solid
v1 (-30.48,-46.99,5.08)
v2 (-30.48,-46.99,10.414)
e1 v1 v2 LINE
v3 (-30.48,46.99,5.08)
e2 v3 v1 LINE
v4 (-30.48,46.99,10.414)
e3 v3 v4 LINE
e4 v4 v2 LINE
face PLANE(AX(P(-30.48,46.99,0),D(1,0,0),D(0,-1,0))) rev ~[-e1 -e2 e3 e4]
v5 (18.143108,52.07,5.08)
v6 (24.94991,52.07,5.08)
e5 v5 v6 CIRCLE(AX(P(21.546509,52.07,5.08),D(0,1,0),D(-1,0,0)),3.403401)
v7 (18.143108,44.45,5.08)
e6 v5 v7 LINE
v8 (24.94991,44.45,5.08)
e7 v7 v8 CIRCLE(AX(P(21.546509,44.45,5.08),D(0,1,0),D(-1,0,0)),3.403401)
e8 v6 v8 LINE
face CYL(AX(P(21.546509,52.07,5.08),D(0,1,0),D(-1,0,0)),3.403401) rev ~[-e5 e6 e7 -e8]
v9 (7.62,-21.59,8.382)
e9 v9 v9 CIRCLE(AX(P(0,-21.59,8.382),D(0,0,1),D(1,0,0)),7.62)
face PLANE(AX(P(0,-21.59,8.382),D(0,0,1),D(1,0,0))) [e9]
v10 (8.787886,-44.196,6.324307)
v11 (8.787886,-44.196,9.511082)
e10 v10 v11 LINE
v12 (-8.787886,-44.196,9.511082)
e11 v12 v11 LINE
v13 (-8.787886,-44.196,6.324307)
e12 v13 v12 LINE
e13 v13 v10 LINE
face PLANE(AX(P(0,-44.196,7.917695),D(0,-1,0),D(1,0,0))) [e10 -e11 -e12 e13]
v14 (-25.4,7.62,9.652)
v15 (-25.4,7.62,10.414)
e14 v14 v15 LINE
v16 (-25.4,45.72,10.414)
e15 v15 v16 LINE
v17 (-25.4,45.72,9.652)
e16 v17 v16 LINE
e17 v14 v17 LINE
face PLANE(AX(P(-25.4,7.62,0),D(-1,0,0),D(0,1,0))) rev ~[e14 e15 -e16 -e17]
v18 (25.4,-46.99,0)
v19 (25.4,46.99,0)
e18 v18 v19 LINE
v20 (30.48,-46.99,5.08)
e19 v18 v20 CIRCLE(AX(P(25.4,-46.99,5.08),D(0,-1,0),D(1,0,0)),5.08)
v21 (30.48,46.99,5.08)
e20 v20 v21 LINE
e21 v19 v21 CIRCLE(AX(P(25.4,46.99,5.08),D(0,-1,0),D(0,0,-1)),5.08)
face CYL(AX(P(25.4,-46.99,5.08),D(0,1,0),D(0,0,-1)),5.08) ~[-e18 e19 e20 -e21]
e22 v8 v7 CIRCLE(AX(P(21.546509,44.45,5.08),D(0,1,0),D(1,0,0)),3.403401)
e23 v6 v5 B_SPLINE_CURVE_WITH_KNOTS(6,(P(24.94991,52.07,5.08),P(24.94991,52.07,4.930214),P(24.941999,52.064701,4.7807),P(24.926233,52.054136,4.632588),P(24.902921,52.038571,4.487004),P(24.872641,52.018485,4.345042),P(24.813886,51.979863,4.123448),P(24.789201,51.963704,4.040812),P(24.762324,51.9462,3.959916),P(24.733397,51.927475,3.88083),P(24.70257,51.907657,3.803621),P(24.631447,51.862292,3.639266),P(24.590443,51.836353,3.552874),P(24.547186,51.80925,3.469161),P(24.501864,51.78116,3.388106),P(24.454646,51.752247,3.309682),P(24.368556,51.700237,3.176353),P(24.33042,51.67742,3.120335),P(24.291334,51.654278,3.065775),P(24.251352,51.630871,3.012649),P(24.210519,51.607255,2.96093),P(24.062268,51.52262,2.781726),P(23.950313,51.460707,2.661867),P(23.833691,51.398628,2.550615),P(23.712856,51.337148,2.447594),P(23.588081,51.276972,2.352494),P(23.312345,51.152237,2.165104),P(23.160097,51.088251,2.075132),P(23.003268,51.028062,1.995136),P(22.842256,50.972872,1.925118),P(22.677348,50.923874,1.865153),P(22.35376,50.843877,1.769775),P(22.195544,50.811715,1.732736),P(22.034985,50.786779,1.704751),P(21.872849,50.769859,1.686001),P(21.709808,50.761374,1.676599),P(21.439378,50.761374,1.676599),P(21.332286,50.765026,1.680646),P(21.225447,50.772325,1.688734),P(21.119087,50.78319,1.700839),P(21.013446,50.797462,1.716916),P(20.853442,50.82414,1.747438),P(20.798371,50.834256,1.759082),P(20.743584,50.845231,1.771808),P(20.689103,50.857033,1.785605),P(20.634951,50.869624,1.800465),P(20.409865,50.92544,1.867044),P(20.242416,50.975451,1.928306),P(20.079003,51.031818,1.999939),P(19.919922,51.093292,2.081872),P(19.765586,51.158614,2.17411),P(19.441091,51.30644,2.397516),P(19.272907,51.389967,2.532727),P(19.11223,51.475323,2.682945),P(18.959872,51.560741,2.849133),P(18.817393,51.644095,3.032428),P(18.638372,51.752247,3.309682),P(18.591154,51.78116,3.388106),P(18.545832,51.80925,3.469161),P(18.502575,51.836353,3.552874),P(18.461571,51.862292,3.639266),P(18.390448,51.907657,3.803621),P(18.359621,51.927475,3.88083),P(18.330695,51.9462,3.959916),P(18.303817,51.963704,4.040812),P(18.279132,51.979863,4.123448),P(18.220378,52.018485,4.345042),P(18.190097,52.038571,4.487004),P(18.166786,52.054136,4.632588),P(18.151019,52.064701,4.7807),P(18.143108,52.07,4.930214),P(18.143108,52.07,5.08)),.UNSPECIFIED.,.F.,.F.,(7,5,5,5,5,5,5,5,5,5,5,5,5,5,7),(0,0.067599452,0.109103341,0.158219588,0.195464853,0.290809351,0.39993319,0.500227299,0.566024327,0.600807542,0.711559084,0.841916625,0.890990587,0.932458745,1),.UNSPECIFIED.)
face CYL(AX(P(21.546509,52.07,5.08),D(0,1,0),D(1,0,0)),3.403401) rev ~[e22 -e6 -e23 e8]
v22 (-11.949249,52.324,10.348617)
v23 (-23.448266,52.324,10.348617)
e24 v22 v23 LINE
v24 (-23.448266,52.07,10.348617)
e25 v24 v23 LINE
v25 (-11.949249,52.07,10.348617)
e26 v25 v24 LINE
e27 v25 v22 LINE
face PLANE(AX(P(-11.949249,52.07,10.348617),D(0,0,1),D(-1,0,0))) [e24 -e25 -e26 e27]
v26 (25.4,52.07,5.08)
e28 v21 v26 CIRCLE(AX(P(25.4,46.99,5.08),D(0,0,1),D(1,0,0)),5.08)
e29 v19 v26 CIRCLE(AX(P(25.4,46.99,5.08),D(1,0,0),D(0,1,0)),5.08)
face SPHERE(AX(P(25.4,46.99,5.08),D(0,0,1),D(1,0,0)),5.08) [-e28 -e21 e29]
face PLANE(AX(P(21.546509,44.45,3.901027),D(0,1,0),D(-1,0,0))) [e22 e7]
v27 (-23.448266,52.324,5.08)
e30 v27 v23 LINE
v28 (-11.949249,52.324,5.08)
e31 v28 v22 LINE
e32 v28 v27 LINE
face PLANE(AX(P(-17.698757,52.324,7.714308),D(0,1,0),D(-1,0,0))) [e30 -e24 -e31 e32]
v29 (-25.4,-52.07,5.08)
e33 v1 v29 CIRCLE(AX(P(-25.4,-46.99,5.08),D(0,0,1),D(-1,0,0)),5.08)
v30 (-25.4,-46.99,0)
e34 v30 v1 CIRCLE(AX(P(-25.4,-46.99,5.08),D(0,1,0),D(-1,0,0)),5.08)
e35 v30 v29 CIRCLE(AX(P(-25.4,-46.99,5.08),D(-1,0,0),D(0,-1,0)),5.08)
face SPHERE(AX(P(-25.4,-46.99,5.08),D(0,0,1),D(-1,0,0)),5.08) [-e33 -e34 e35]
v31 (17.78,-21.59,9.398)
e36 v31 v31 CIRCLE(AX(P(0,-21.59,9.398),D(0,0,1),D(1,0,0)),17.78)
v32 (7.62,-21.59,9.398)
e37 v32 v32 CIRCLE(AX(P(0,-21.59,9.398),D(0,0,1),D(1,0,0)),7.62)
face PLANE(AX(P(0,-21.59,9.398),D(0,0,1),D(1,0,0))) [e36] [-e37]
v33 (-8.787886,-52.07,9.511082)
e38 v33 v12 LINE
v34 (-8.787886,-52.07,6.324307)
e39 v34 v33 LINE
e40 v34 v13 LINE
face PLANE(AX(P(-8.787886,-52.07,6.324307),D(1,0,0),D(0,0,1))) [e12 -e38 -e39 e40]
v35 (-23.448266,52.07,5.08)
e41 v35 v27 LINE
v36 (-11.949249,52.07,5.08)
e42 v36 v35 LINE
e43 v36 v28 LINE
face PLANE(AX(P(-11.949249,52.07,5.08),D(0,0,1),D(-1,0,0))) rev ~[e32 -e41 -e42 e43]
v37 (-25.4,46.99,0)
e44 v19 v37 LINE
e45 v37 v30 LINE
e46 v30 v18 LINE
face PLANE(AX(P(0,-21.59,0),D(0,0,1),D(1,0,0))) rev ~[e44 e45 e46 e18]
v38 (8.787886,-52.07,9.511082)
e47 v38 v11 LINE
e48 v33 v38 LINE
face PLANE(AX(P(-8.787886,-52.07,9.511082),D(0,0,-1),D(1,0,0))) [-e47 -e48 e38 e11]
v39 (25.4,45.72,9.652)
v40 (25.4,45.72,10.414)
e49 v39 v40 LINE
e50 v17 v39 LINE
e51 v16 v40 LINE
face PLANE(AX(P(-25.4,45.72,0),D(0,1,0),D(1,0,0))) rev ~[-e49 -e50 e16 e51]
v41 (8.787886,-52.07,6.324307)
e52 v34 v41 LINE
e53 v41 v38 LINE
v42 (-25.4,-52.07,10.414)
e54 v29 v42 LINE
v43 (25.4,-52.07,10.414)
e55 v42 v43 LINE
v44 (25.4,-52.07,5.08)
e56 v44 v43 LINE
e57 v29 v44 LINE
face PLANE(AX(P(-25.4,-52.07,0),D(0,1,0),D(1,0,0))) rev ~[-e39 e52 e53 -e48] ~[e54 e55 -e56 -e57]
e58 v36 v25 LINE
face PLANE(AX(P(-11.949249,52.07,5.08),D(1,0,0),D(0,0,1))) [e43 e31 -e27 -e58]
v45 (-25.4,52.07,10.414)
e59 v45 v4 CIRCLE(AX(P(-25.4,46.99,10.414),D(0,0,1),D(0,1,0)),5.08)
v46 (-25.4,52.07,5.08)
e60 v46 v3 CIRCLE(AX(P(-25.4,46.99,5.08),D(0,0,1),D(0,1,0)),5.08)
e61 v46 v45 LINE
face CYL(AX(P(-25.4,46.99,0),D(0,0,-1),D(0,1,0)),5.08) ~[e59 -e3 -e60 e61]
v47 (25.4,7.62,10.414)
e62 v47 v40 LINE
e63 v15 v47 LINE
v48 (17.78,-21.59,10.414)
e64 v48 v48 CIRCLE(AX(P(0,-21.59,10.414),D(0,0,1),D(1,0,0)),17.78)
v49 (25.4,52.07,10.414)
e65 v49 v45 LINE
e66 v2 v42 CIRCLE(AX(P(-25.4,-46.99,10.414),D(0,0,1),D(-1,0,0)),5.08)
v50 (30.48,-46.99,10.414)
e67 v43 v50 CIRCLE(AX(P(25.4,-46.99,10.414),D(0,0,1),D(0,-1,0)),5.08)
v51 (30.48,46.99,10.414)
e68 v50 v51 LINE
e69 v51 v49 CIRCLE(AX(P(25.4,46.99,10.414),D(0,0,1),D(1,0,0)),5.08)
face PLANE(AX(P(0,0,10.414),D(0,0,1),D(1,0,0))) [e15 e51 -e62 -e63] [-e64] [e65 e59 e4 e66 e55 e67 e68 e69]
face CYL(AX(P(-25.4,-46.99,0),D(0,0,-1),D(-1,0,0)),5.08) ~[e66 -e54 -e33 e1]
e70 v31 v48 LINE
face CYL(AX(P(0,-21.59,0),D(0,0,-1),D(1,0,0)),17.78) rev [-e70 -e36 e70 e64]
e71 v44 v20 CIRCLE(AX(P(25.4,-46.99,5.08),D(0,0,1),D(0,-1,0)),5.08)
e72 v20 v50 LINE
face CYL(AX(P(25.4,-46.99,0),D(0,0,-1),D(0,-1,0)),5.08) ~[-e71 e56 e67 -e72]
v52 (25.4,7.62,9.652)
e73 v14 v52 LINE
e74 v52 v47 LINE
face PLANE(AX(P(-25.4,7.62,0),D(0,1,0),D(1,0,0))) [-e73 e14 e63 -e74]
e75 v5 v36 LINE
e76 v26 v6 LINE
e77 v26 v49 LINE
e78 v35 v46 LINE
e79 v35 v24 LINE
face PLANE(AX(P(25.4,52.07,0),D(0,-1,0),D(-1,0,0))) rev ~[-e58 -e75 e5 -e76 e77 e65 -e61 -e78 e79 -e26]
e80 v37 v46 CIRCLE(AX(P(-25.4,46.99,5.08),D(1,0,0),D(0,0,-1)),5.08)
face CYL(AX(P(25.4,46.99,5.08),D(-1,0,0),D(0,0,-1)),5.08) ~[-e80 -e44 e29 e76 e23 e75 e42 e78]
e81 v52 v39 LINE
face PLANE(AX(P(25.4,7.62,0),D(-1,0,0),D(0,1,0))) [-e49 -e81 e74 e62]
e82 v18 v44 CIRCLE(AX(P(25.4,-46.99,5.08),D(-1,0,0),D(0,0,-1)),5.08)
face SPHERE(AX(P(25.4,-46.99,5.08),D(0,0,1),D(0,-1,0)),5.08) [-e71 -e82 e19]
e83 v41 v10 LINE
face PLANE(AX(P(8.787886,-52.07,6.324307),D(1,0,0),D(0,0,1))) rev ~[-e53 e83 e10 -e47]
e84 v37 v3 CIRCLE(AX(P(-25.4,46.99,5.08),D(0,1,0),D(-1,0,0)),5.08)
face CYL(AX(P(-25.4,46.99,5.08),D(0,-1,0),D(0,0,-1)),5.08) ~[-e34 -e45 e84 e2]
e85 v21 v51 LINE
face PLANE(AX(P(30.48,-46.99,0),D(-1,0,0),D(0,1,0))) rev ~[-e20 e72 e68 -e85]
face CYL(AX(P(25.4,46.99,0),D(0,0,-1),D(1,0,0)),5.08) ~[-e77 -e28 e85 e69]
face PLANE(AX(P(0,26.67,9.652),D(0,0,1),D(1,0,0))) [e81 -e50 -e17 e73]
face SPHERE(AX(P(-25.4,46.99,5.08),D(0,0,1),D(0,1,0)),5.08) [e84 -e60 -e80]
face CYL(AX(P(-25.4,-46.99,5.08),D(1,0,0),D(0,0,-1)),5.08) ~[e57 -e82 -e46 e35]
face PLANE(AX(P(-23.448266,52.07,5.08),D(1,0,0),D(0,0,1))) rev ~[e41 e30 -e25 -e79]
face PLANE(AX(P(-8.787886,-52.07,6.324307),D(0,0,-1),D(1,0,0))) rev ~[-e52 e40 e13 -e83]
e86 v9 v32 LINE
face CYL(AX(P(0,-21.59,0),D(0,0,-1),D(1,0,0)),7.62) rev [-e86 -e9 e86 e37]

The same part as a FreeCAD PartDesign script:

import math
import FreeCAD as App
import Part
import Sketcher
Q = App.Units.Quantity


def edges_at(feature, points):
    """Names of the edges that pass closest to the given points."""
    edges = feature.Shape.Edges
    near = lambda p: min(range(len(edges)), key=lambda i: edges[i].distToShape(Part.Vertex(*p))[0])
    return sorted({f"Edge{near(p) + 1}" for p in points})

doc = App.newDocument("Part")
body = doc.addObject("PartDesign::Body", "Body")

# Sketch on XY plane
sketch1 = body.newObject("Sketcher::SketchObject", "Sketch")
sketch1.AttachmentSupport = (doc.getObject("XY_Plane"), [""])
sketch1.MapMode = "FlatFace"
sketch1.addGeometry(Part.LineSegment(App.Vector(25, 52, 0), App.Vector(-25, 52, 0)), False)
sketch1.addGeometry(Part.ArcOfCircle(Part.Circle(App.Vector(-25, 47, 0), App.Vector(0, 0, 1), 5), math.radians(90), math.radians(180)), False)
sketch1.addGeometry(Part.LineSegment(App.Vector(-30, 47, 0), App.Vector(-30, -47, 0)), False)
sketch1.addGeometry(Part.ArcOfCircle(Part.Circle(App.Vector(-25, -47, 0), App.Vector(0, 0, 1), 5), math.radians(180), math.radians(270)), False)
sketch1.addGeometry(Part.LineSegment(App.Vector(-25, -52, 0), App.Vector(25, -52, 0)), False)
sketch1.addGeometry(Part.ArcOfCircle(Part.Circle(App.Vector(25, -47, 0), App.Vector(0, 0, 1), 5), math.radians(-90), math.radians(0)), False)
sketch1.addGeometry(Part.LineSegment(App.Vector(30, -47, 0), App.Vector(30, 47, 0)), False)
sketch1.addGeometry(Part.ArcOfCircle(Part.Circle(App.Vector(25, 47, 0), App.Vector(0, 0, 1), 5), math.radians(0), math.radians(90)), False)
sketch1.addGeometry(Part.Circle(App.Vector(0, -22, 0), App.Vector(0, 0, 1), 18), False)
sketch1.addGeometry(Part.LineSegment(App.Vector(25, 8, 0), App.Vector(-25, 8, 0)), False)
sketch1.addGeometry(Part.LineSegment(App.Vector(-25, 8, 0), App.Vector(-25, 46, 0)), False)
sketch1.addGeometry(Part.LineSegment(App.Vector(-25, 46, 0), App.Vector(25, 46, 0)), False)
sketch1.addGeometry(Part.LineSegment(App.Vector(25, 46, 0), App.Vector(25, 8, 0)), False)
sketch1.addConstraint(Sketcher.Constraint("Tangent", 0, 2, 1, 1))
sketch1.addConstraint(Sketcher.Constraint("Tangent", 1, 2, 2, 1))
sketch1.addConstraint(Sketcher.Constraint("Tangent", 2, 2, 3, 1))
sketch1.addConstraint(Sketcher.Constraint("Tangent", 3, 2, 4, 1))
sketch1.addConstraint(Sketcher.Constraint("Tangent", 4, 2, 5, 1))
sketch1.addConstraint(Sketcher.Constraint("Tangent", 5, 2, 6, 1))
sketch1.addConstraint(Sketcher.Constraint("Tangent", 6, 2, 7, 1))
sketch1.addConstraint(Sketcher.Constraint("Tangent", 7, 2, 0, 1))
sketch1.addConstraint(Sketcher.Constraint("Coincident", 9, 2, 10, 1))
sketch1.addConstraint(Sketcher.Constraint("Coincident", 10, 2, 11, 1))
sketch1.addConstraint(Sketcher.Constraint("Coincident", 11, 2, 12, 1))
sketch1.addConstraint(Sketcher.Constraint("Coincident", 12, 2, 9, 1))
sketch1.addConstraint(Sketcher.Constraint("Horizontal", 0))
sketch1.addConstraint(Sketcher.Constraint("Vertical", 2))
sketch1.addConstraint(Sketcher.Constraint("Horizontal", 4))
sketch1.addConstraint(Sketcher.Constraint("Vertical", 6))
sketch1.addConstraint(Sketcher.Constraint("Horizontal", 9))
sketch1.addConstraint(Sketcher.Constraint("Vertical", 10))
sketch1.addConstraint(Sketcher.Constraint("Horizontal", 11))
sketch1.addConstraint(Sketcher.Constraint("Vertical", 12))
sketch1.addConstraint(Sketcher.Constraint("Equal", 1, 3))
sketch1.addConstraint(Sketcher.Constraint("Equal", 3, 5))
sketch1.addConstraint(Sketcher.Constraint("Equal", 5, 7))
sketch1.addConstraint(Sketcher.Constraint("Symmetric", 1, 3, 5, 3, -1, 1))
sketch1.addConstraint(Sketcher.Constraint("PointOnObject", 8, 3, -2))
sketch1.addConstraint(Sketcher.Constraint("Vertical", 3, 2, 9, 2))
sketch1.addConstraint(Sketcher.Constraint("Vertical", 7, 2, 11, 2))
sketch1.addConstraint(Sketcher.Constraint("Diameter", 8, Q("1.4 in")))
sketch1.addConstraint(Sketcher.Constraint("Radius", 1, Q("0.2 in")))
sketch1.addConstraint(Sketcher.Constraint("DistanceX", 0, 2, 0, 1, Q("2 in")))
sketch1.addConstraint(Sketcher.Constraint("DistanceY", 2, 2, 2, 1, Q("3.7 in")))
sketch1.addConstraint(Sketcher.Constraint("DistanceY", 10, 1, 10, 2, Q("1.5 in")))
sketch1.addConstraint(Sketcher.Constraint("DistanceY", 3, 3, 8, 3, Q("1 in")))
sketch1.addConstraint(Sketcher.Constraint("DistanceY", -1, 1, 9, 2, Q("0.3 in")))
pad1 = body.newObject("PartDesign::Pad", "Pad")
pad1.Profile = sketch1
pad1.Length = Q("0.41 in")

# Sketch on XY plane
sketch2 = body.newObject("Sketcher::SketchObject", "Sketch001")
sketch2.AttachmentSupport = (doc.getObject("XY_Plane"), [""])
sketch2.MapMode = "FlatFace"
sketch2.addGeometry(Part.LineSegment(App.Vector(-25, 46, 0), App.Vector(-25, 8, 0)), False)
sketch2.addGeometry(Part.LineSegment(App.Vector(-25, 8, 0), App.Vector(25, 8, 0)), False)
sketch2.addGeometry(Part.LineSegment(App.Vector(25, 8, 0), App.Vector(25, 46, 0)), False)
sketch2.addGeometry(Part.LineSegment(App.Vector(25, 46, 0), App.Vector(-25, 46, 0)), False)
sketch2.addConstraint(Sketcher.Constraint("Coincident", 0, 2, 1, 1))
sketch2.addConstraint(Sketcher.Constraint("Coincident", 1, 2, 2, 1))
sketch2.addConstraint(Sketcher.Constraint("Coincident", 2, 2, 3, 1))
sketch2.addConstraint(Sketcher.Constraint("Coincident", 3, 2, 0, 1))
sketch2.addConstraint(Sketcher.Constraint("Vertical", 0))
sketch2.addConstraint(Sketcher.Constraint("Horizontal", 1))
sketch2.addConstraint(Sketcher.Constraint("Vertical", 2))
sketch2.addConstraint(Sketcher.Constraint("Horizontal", 3))
sketch2.addConstraint(Sketcher.Constraint("DistanceX", 1, 1, 1, 2, Q("2 in")))
sketch2.addConstraint(Sketcher.Constraint("DistanceY", 0, 2, 0, 1, Q("1.5 in")))
sketch2.addConstraint(Sketcher.Constraint("DistanceX", 0, 2, -1, 1, Q("1 in")))
sketch2.addConstraint(Sketcher.Constraint("DistanceY", -1, 1, 0, 2, Q("0.3 in")))
pad2 = body.newObject("PartDesign::Pad", "Pad001")
pad2.Profile = sketch2
pad2.Length = Q("0.38 in")

# Sketch on XY plane
sketch3 = body.newObject("Sketcher::SketchObject", "Sketch002")
sketch3.AttachmentSupport = (doc.getObject("XY_Plane"), [""])
sketch3.MapMode = "FlatFace"
sketch3.addGeometry(Part.Circle(App.Vector(0, -22, 0), App.Vector(0, 0, 1), 18), False)
sketch3.addGeometry(Part.Circle(App.Vector(0, -22, 0), App.Vector(0, 0, 1), 8), False)
sketch3.addConstraint(Sketcher.Constraint("Coincident", 1, 3, 0, 3))
sketch3.addConstraint(Sketcher.Constraint("PointOnObject", 0, 3, -2))
sketch3.addConstraint(Sketcher.Constraint("Diameter", 0, Q("1.4 in")))
sketch3.addConstraint(Sketcher.Constraint("Diameter", 1, Q("0.6 in")))
sketch3.addConstraint(Sketcher.Constraint("DistanceY", 0, 3, -1, 1, Q("0.85 in")))
pad3 = body.newObject("PartDesign::Pad", "Pad002")
pad3.Profile = sketch3
pad3.Length = Q("0.37 in")

# Sketch on XY plane
sketch4 = body.newObject("Sketcher::SketchObject", "Sketch003")
sketch4.AttachmentSupport = (doc.getObject("XY_Plane"), [""])
sketch4.MapMode = "FlatFace"
sketch4.addGeometry(Part.Circle(App.Vector(0, -22, 0), App.Vector(0, 0, 1), 8), False)
sketch4.addConstraint(Sketcher.Constraint("PointOnObject", 0, 3, -2))
sketch4.addConstraint(Sketcher.Constraint("Diameter", 0, Q("0.6 in")))
sketch4.addConstraint(Sketcher.Constraint("DistanceY", 0, 3, -1, 1, Q("0.85 in")))
pad4 = body.newObject("PartDesign::Pad", "Pad003")
pad4.Profile = sketch4
pad4.Length = Q("0.33 in")
doc.recompute()

fillet = body.newObject("PartDesign::Fillet", "Fillet")
fillet.Base = (pad4, edges_at(pad4, [(-28.992, -50.582, 0)]))
fillet.Radius = Q("0.2 in")

# Sketch on XZ plane
sketch5 = body.newObject("Sketcher::SketchObject", "Sketch004")
sketch5.AttachmentSupport = (doc.getObject("XZ_Plane"), [""])
sketch5.MapMode = "FlatFace"
sketch5.AttachmentOffset = App.Placement(App.Vector(0, 0, 2.05 * 25.4), App.Rotation())
sketch5.addGeometry(Part.LineSegment(App.Vector(-8.8, 9.5, 0), App.Vector(-8.8, 6.3, 0)), False)
sketch5.addGeometry(Part.LineSegment(App.Vector(-8.8, 6.3, 0), App.Vector(8.8, 6.3, 0)), False)
sketch5.addGeometry(Part.LineSegment(App.Vector(8.8, 6.3, 0), App.Vector(8.8, 9.5, 0)), False)
sketch5.addGeometry(Part.LineSegment(App.Vector(8.8, 9.5, 0), App.Vector(-8.8, 9.5, 0)), False)
sketch5.addConstraint(Sketcher.Constraint("Coincident", 0, 2, 1, 1))
sketch5.addConstraint(Sketcher.Constraint("Coincident", 1, 2, 2, 1))
sketch5.addConstraint(Sketcher.Constraint("Coincident", 2, 2, 3, 1))
sketch5.addConstraint(Sketcher.Constraint("Coincident", 3, 2, 0, 1))
sketch5.addConstraint(Sketcher.Constraint("Vertical", 0))
sketch5.addConstraint(Sketcher.Constraint("Horizontal", 1))
sketch5.addConstraint(Sketcher.Constraint("Vertical", 2))
sketch5.addConstraint(Sketcher.Constraint("Horizontal", 3))
sketch5.addConstraint(Sketcher.Constraint("DistanceX", 1, 1, 1, 2, Q("17.575772 mm")))
sketch5.addConstraint(Sketcher.Constraint("DistanceY", 0, 2, 0, 1, Q("3.186775 mm")))
sketch5.addConstraint(Sketcher.Constraint("DistanceX", 0, 2, -1, 1, Q("8.787886 mm")))
sketch5.addConstraint(Sketcher.Constraint("DistanceY", -1, 1, 0, 2, Q("6.324307 mm")))
pocket1 = body.newObject("PartDesign::Pocket", "Pocket")
pocket1.Profile = sketch5
pocket1.Length = Q("0.31 in")

# Sketch on XZ plane
sketch6 = body.newObject("Sketcher::SketchObject", "Sketch005")
sketch6.AttachmentSupport = (doc.getObject("XZ_Plane"), [""])
sketch6.MapMode = "FlatFace"
sketch6.AttachmentOffset = App.Placement(App.Vector(0, 0, -2.05 * 25.4), App.Rotation())
sketch6.addGeometry(Part.LineSegment(App.Vector(-12, 10, 0), App.Vector(-12, 5, 0)), False)
sketch6.addGeometry(Part.LineSegment(App.Vector(-12, 5, 0), App.Vector(-23, 5, 0)), False)
sketch6.addGeometry(Part.LineSegment(App.Vector(-23, 5, 0), App.Vector(-23, 10, 0)), False)
sketch6.addGeometry(Part.LineSegment(App.Vector(-23, 10, 0), App.Vector(-12, 10, 0)), False)
sketch6.addConstraint(Sketcher.Constraint("Coincident", 0, 2, 1, 1))
sketch6.addConstraint(Sketcher.Constraint("Coincident", 1, 2, 2, 1))
sketch6.addConstraint(Sketcher.Constraint("Coincident", 2, 2, 3, 1))
sketch6.addConstraint(Sketcher.Constraint("Coincident", 3, 2, 0, 1))
sketch6.addConstraint(Sketcher.Constraint("Vertical", 0))
sketch6.addConstraint(Sketcher.Constraint("Horizontal", 1))
sketch6.addConstraint(Sketcher.Constraint("Vertical", 2))
sketch6.addConstraint(Sketcher.Constraint("Horizontal", 3))
sketch6.addConstraint(Sketcher.Constraint("DistanceY", -1, 1, 0, 2, Q("0.2 in")))
sketch6.addConstraint(Sketcher.Constraint("DistanceX", 1, 2, 1, 1, Q("11.499017 mm")))
sketch6.addConstraint(Sketcher.Constraint("DistanceY", 0, 2, 0, 1, Q("5.268617 mm")))
sketch6.addConstraint(Sketcher.Constraint("DistanceX", 0, 2, -1, 1, Q("11.949249 mm")))
pad5 = body.newObject("PartDesign::Pad", "Pad004")
pad5.Profile = sketch6
pad5.Length = Q("0.01 in")
pad5.Reversed = True

# Sketch on XZ plane
sketch7 = body.newObject("Sketcher::SketchObject", "Sketch006")
sketch7.AttachmentSupport = (doc.getObject("XZ_Plane"), [""])
sketch7.MapMode = "FlatFace"
sketch7.AttachmentOffset = App.Placement(App.Vector(0, 0, -2.05 * 25.4), App.Rotation())
sketch7.addGeometry(Part.ArcOfCircle(Part.Circle(App.Vector(21.5, 5.1, 0), App.Vector(0, 0, 1), 3.4), math.radians(180), math.radians(360)), False)
sketch7.addGeometry(Part.ArcOfCircle(Part.Circle(App.Vector(21.5, 5.1, 0), App.Vector(0, 0, 1), 3.4), math.radians(0), math.radians(180)), False)
sketch7.addConstraint(Sketcher.Constraint("Tangent", 0, 1, 1, 2))
sketch7.addConstraint(Sketcher.Constraint("Coincident", 1, 1, 0, 2))
sketch7.addConstraint(Sketcher.Constraint("Horizontal", 1, 3, 0, 1))
sketch7.addConstraint(Sketcher.Constraint("Horizontal", 0, 1, 1, 1))
sketch7.addConstraint(Sketcher.Constraint("DistanceY", -1, 1, 0, 3, Q("0.2 in")))
sketch7.addConstraint(Sketcher.Constraint("Radius", 0, Q("3.403401 mm")))
sketch7.addConstraint(Sketcher.Constraint("DistanceX", -1, 1, 0, 3, Q("21.546509 mm")))
pocket2 = body.newObject("PartDesign::Pocket", "Pocket001")
pocket2.Profile = sketch7
pocket2.Length = Q("0.3 in")
pocket2.Reversed = True

doc.recompute()
